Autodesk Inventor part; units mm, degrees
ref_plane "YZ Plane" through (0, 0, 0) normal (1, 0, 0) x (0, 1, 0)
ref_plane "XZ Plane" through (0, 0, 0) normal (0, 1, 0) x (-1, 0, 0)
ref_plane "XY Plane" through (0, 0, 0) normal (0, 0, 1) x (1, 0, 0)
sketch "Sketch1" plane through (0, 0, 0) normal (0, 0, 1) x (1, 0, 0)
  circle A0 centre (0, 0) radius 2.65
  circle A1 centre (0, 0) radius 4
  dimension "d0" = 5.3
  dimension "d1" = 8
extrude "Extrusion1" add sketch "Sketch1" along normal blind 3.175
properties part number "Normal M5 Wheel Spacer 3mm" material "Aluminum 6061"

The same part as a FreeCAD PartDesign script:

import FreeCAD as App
import Part
import Sketcher
from FreeCAD import Vector
Q = App.Units.Quantity

doc = App.newDocument("Part")
body = doc.addObject("PartDesign::Body", "Body")

# Sketch on XY plane
sketch1 = body.newObject("Sketcher::SketchObject", "Sketch")
sketch1.AttachmentSupport = (doc.getObject("XY_Plane"), [""])
sketch1.MapMode = "FlatFace"
sketch1.addGeometry([
    Part.Circle(Vector(0, 0, 0), Vector(0, 0, 1), 4),
    Part.Circle(Vector(0, 0, 0), Vector(0, 0, 1), 2.65),
], False)
sketch1.addConstraint([
    Sketcher.Constraint("Coincident", 0, 3, -1, 1),
    Sketcher.Constraint("Coincident", 1, 3, -1, 1),
    Sketcher.Constraint("Diameter", 0, Q("8 mm")),
    Sketcher.Constraint("Diameter", 1, Q("5.3 mm")),
])
pad1 = body.newObject("PartDesign::Pad", "Pad")
pad1.Profile = sketch1
pad1.Length = 3.175

doc.recompute()
